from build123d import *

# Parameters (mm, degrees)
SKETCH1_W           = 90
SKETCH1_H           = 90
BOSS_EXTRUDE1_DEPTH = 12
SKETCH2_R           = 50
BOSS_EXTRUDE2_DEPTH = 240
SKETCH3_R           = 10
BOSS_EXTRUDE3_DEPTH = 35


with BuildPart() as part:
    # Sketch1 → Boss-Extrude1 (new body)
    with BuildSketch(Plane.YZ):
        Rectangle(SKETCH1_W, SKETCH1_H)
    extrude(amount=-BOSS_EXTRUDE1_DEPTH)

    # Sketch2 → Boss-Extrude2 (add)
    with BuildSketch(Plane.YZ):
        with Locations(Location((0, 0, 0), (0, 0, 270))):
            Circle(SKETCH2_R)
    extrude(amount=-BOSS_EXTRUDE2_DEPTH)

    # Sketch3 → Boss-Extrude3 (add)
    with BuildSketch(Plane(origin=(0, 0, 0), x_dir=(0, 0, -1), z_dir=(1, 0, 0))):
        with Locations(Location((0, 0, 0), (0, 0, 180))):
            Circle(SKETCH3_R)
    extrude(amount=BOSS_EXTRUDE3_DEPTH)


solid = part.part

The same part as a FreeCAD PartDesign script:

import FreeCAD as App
import Part
import Sketcher

V = App.Vector
Q = App.Units.Quantity

doc = App.newDocument("Part")
body = doc.addObject("PartDesign::Body", "Body")

# Sketch on YZ plane
sketch1 = body.newObject("Sketcher::SketchObject", "Sketch")
sketch1.AttachmentSupport = (doc.getObject("YZ_Plane"), [""])
sketch1.MapMode = "FlatFace"
sketch1.addGeometry([
    Part.LineSegment(V(-45, 45, 0), V(-45, -45, 0)),
    Part.LineSegment(V(-45, -45, 0), V(45, -45, 0)),
    Part.LineSegment(V(45, -45, 0), V(45, 45, 0)),
    Part.LineSegment(V(45, 45, 0), V(-45, 45, 0)),
], False)
sketch1.addConstraint([
    Sketcher.Constraint("Coincident", 0, 2, 1, 1),
    Sketcher.Constraint("Coincident", 1, 2, 2, 1),
    Sketcher.Constraint("Coincident", 2, 2, 3, 1),
    Sketcher.Constraint("Coincident", 3, 2, 0, 1),
    Sketcher.Constraint("Vertical", 0),
    Sketcher.Constraint("Horizontal", 1),
    Sketcher.Constraint("Vertical", 2),
    Sketcher.Constraint("Horizontal", 3),
    Sketcher.Constraint("Symmetric", 0, 2, 2, 2, -1, 1),
    Sketcher.Constraint("Equal", 3, 0),
    Sketcher.Constraint("DistanceX", 1, 1, 1, 2, Q("90 mm")),
])
pad1 = body.newObject("PartDesign::Pad", "Pad")
pad1.Profile = sketch1
pad1.Length = 12
pad1.Reversed = True

# Sketch on YZ plane
sketch2 = body.newObject("Sketcher::SketchObject", "Sketch001")
sketch2.AttachmentSupport = (doc.getObject("YZ_Plane"), [""])
sketch2.MapMode = "FlatFace"
sketch2.addGeometry(Part.Circle(V(0, 0, 0), V(0, 0, 1), 50), False)
sketch2.addConstraint([
    Sketcher.Constraint("Coincident", 0, 3, -1, 1),
    Sketcher.Constraint("Diameter", 0, Q("100 mm")),
])
pad2 = body.newObject("PartDesign::Pad", "Pad001")
pad2.Profile = sketch2
pad2.Length = 240
pad2.Reversed = True

# Sketch on YZ plane
sketch3 = body.newObject("Sketcher::SketchObject", "Sketch002")
sketch3.AttachmentSupport = (doc.getObject("YZ_Plane"), [""])
sketch3.MapMode = "FlatFace"
sketch3.addGeometry(Part.Circle(V(0, 0, 0), V(0, 0, 1), 10), False)
sketch3.addConstraint([
    Sketcher.Constraint("Coincident", 0, 3, -1, 1),
    Sketcher.Constraint("Diameter", 0, Q("20 mm")),
])
pad3 = body.newObject("PartDesign::Pad", "Pad002")
pad3.Profile = sketch3
pad3.Length = 35

doc.recompute()
